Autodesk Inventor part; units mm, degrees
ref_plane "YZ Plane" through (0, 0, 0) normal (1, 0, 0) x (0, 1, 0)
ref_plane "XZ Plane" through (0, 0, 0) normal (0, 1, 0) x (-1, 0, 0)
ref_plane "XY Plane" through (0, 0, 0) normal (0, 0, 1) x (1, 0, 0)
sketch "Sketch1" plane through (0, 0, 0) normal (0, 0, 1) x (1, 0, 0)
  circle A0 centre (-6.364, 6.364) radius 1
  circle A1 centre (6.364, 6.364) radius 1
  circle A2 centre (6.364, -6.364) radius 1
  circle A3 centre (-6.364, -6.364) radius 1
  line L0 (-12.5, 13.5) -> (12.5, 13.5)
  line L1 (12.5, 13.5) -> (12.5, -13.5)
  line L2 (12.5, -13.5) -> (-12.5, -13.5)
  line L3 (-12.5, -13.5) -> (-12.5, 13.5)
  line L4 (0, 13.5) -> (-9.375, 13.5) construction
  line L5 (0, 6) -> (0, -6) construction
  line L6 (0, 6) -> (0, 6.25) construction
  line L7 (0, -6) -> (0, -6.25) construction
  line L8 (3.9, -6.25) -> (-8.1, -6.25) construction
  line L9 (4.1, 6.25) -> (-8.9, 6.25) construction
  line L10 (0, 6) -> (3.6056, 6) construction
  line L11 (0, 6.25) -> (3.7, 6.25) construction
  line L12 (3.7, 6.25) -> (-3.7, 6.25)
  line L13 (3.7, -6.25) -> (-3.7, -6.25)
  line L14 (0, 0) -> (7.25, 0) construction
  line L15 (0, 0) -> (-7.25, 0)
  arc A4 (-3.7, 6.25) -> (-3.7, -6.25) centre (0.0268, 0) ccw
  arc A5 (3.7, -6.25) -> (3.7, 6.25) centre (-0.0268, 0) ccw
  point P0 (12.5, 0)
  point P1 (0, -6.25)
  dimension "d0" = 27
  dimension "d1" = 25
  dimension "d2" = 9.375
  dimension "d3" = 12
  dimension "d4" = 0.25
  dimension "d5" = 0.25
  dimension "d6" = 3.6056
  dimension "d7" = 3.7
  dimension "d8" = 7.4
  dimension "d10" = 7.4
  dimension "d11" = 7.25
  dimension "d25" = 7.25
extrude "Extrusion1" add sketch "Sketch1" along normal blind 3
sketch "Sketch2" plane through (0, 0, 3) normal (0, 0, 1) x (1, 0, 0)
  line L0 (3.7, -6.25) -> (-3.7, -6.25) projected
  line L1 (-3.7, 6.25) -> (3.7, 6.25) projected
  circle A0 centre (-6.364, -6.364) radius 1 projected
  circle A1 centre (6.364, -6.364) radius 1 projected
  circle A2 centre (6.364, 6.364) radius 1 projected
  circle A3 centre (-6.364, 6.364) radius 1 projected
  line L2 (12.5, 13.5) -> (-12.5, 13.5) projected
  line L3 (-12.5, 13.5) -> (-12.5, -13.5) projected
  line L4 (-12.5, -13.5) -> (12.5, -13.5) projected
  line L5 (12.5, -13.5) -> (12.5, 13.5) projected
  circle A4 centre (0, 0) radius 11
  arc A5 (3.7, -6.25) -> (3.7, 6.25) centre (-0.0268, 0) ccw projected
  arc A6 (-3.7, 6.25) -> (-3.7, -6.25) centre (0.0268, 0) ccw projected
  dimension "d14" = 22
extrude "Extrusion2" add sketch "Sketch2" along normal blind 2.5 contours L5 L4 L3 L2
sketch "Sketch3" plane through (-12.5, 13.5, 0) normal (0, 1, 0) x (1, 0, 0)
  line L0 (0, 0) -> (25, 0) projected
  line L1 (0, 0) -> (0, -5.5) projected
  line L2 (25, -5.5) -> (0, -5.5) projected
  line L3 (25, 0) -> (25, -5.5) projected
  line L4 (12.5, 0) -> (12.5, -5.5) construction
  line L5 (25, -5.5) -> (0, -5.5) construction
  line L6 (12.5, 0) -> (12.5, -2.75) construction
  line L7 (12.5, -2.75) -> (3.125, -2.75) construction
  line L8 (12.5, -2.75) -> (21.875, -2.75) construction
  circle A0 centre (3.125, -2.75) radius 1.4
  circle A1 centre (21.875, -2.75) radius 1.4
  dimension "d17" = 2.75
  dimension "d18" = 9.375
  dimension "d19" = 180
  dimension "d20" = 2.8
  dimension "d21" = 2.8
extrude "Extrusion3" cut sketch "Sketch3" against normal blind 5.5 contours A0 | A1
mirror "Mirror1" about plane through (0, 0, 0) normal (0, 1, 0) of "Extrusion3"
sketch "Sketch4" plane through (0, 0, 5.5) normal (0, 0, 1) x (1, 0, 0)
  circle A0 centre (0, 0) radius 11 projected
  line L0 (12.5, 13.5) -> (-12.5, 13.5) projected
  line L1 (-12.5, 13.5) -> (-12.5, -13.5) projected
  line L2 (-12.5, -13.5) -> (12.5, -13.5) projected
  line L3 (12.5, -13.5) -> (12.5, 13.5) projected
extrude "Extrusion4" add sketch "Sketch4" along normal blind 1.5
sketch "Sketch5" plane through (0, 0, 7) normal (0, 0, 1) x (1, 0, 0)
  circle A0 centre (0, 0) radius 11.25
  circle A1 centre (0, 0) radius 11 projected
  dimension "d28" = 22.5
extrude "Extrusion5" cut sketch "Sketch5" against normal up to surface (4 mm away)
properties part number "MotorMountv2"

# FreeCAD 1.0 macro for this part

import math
import FreeCAD as App
import Part
import Sketcher

doc = App.newDocument("Part")
params = doc.addObject("Spreadsheet::Sheet", "Params")
for row, (alias, value) in enumerate([
    ("sketch1_width", "25 mm"),
    ("sketch1_height", "27 mm"),
    ("sketch1_diameter", "2 mm"),
    ("sketch1_width2", "7.4 mm"),
    ("pad1_length", "3 mm"),
    ("sketch2_diameter", "22 mm"),
    ("sketch2_width", "25 mm"),
    ("sketch2_height", "27 mm"),
    ("pad2_length", "2.5 mm"),
    ("sketch3_diameter", "2.8 mm"),
    ("pocket1_length", "5.5 mm"),
    ("sketch4_diameter", "22 mm"),
    ("sketch4_width", "25 mm"),
    ("sketch4_height", "27 mm"),
    ("pad3_length", "1.5 mm"),
    ("sketch5_diameter", "22.5 mm"),
    ("sketch5_diameter2", "22 mm"),
    ("pocket2_length", "4 mm"),
], start=1):
    params.set(f"A{row}", alias)
    params.set(f"B{row}", "=" + value)
    params.setAlias(f"B{row}", alias)

body = doc.addObject("PartDesign::Body", "Body")

# Sketch on XY plane
sketch1 = body.newObject("Sketcher::SketchObject", "Sketch")
sketch1.AttachmentSupport = (doc.getObject("XY_Plane"), [""])
sketch1.MapMode = "FlatFace"
sketch1.addGeometry(Part.LineSegment(App.Vector(12.5, 13.5, 0), App.Vector(-12.5, 13.5, 0)), False)
sketch1.addGeometry(Part.LineSegment(App.Vector(-12.5, 13.5, 0), App.Vector(-12.5, -13.5, 0)), False)
sketch1.addGeometry(Part.LineSegment(App.Vector(-12.5, -13.5, 0), App.Vector(12.5, -13.5, 0)), False)
sketch1.addGeometry(Part.LineSegment(App.Vector(12.5, -13.5, 0), App.Vector(12.5, 13.5, 0)), False)
sketch1.addGeometry(Part.Circle(App.Vector(-6.364, -6.364, 0), App.Vector(0, 0, 1), 1), False)
sketch1.addGeometry(Part.Circle(App.Vector(6.364, -6.364, 0), App.Vector(0, 0, 1), 1), False)
sketch1.addGeometry(Part.Circle(App.Vector(-6.364, 6.364, 0), App.Vector(0, 0, 1), 1), False)
sketch1.addGeometry(Part.LineSegment(App.Vector(-3.7, 6.25, 0), App.Vector(3.7, 6.25, 0)), False)
sketch1.addGeometry(Part.ArcOfCircle(Part.Circle(App.Vector(-0.0268, 0, 0), App.Vector(0, 0, 1), 7.276781), math.radians(-59.192883), math.radians(59.192883)), False)
sketch1.addGeometry(Part.LineSegment(App.Vector(3.7, -6.25, 0), App.Vector(-3.7, -6.25, 0)), False)
sketch1.addGeometry(Part.ArcOfCircle(Part.Circle(App.Vector(0.0268, 0, 0), App.Vector(0, 0, 1), 7.276781), math.radians(120.807117), math.radians(239.192883)), False)
sketch1.addGeometry(Part.Circle(App.Vector(6.364, 6.364, 0), App.Vector(0, 0, 1), 1), False)
sketch1.addConstraint(Sketcher.Constraint("Coincident", 0, 2, 1, 1))
sketch1.addConstraint(Sketcher.Constraint("Coincident", 1, 2, 2, 1))
sketch1.addConstraint(Sketcher.Constraint("Coincident", 2, 2, 3, 1))
sketch1.addConstraint(Sketcher.Constraint("Coincident", 3, 2, 0, 1))
sketch1.addConstraint(Sketcher.Constraint("Coincident", 7, 2, 8, 2))
sketch1.addConstraint(Sketcher.Constraint("Coincident", 8, 1, 9, 1))
sketch1.addConstraint(Sketcher.Constraint("Coincident", 9, 2, 10, 2))
sketch1.addConstraint(Sketcher.Constraint("Coincident", 10, 1, 7, 1))
sketch1.addConstraint(Sketcher.Constraint("Horizontal", 0))
sketch1.addConstraint(Sketcher.Constraint("Vertical", 1))
sketch1.addConstraint(Sketcher.Constraint("Horizontal", 2))
sketch1.addConstraint(Sketcher.Constraint("Vertical", 3))
sketch1.addConstraint(Sketcher.Constraint("Horizontal", 7))
sketch1.addConstraint(Sketcher.Constraint("Horizontal", 9))
sketch1.addConstraint(Sketcher.Constraint("Equal", 4, 5))
sketch1.addConstraint(Sketcher.Constraint("Equal", 5, 6))
sketch1.addConstraint(Sketcher.Constraint("Equal", 8, 10))
sketch1.addConstraint(Sketcher.Constraint("Equal", 6, 11))
sketch1.addConstraint(Sketcher.Constraint("Symmetric", 5, 3, 6, 3, -1, 1))
sketch1.addConstraint(Sketcher.Constraint("Symmetric", 8, 3, 10, 3, -1, 1))
sketch1.addConstraint(Sketcher.Constraint("Symmetric", 4, 3, 11, 3, -1, 1))
sketch1.addConstraint(Sketcher.Constraint("Symmetric", 0, 2, 2, 2, -1, 1))
sketch1.addConstraint(Sketcher.Constraint("Symmetric", 4, 3, 5, 3, -2))
sketch1.addConstraint(Sketcher.Constraint("Symmetric", 7, 2, 8, 1, -1))
sketch1.addConstraint(Sketcher.Constraint("DistanceX", 0, 2, 0, 1, 25.0))
sketch1.addConstraint(Sketcher.Constraint("DistanceY", 1, 2, 1, 1, 27.0))
sketch1.addConstraint(Sketcher.Constraint("Diameter", 4, 2.0))
sketch1.addConstraint(Sketcher.Constraint("DistanceX", 7, 1, 7, 2, 7.4))
sketch1.addConstraint(Sketcher.Constraint("DistanceY", 7, 2, 3, 2, 7.25))
sketch1.addConstraint(Sketcher.Constraint("Radius", 8, 7.2768))
sketch1.addConstraint(Sketcher.Constraint("DistanceX", 4, 3, -1, 1, 6.364))
sketch1.addConstraint(Sketcher.Constraint("DistanceY", 4, 3, -1, 1, 6.364))
sketch1.setExpression("Constraints[24]", "Params.sketch1_width")
sketch1.setExpression("Constraints[25]", "Params.sketch1_height")
sketch1.setExpression("Constraints[26]", "Params.sketch1_diameter")
sketch1.setExpression("Constraints[27]", "Params.sketch1_width2")
pad1 = body.newObject("PartDesign::Pad", "Pad")
pad1.Profile = sketch1
pad1.setExpression("Length", "Params.pad1_length")

# Sketch on XY plane
sketch2 = body.newObject("Sketcher::SketchObject", "Sketch001")
sketch2.AttachmentSupport = (doc.getObject("XY_Plane"), [""])
sketch2.MapMode = "FlatFace"
sketch2.AttachmentOffset = App.Placement(App.Vector(0, 0, 3), App.Rotation())
sketch2.addGeometry(Part.LineSegment(App.Vector(12.5, -13.5, 0), App.Vector(12.5, 13.5, 0)), False)
sketch2.addGeometry(Part.LineSegment(App.Vector(12.5, 13.5, 0), App.Vector(-12.5, 13.5, 0)), False)
sketch2.addGeometry(Part.LineSegment(App.Vector(-12.5, 13.5, 0), App.Vector(-12.5, -13.5, 0)), False)
sketch2.addGeometry(Part.LineSegment(App.Vector(-12.5, -13.5, 0), App.Vector(12.5, -13.5, 0)), False)
sketch2.addGeometry(Part.Circle(App.Vector(0, 0, 0), App.Vector(0, 0, 1), 11), False)
sketch2.addConstraint(Sketcher.Constraint("Coincident", 0, 2, 1, 1))
sketch2.addConstraint(Sketcher.Constraint("Coincident", 1, 2, 2, 1))
sketch2.addConstraint(Sketcher.Constraint("Coincident", 2, 2, 3, 1))
sketch2.addConstraint(Sketcher.Constraint("Coincident", 3, 2, 0, 1))
sketch2.addConstraint(Sketcher.Constraint("Vertical", 0))
sketch2.addConstraint(Sketcher.Constraint("Horizontal", 1))
sketch2.addConstraint(Sketcher.Constraint("Vertical", 2))
sketch2.addConstraint(Sketcher.Constraint("Horizontal", 3))
sketch2.addConstraint(Sketcher.Constraint("Coincident", 4, 3, -1, 1))
sketch2.addConstraint(Sketcher.Constraint("Symmetric", 0, 2, 2, 2, -1, 1))
sketch2.addConstraint(Sketcher.Constraint("Diameter", 4, 22.0))
sketch2.addConstraint(Sketcher.Constraint("DistanceX", 1, 2, 1, 1, 25.0))
sketch2.addConstraint(Sketcher.Constraint("DistanceY", 0, 1, 0, 2, 27.0))
sketch2.setExpression("Constraints[10]", "Params.sketch2_diameter")
sketch2.setExpression("Constraints[11]", "Params.sketch2_width")
sketch2.setExpression("Constraints[12]", "Params.sketch2_height")
pad2 = body.newObject("PartDesign::Pad", "Pad001")
pad2.Profile = sketch2
pad2.setExpression("Length", "Params.pad2_length")

# Sketch on XZ plane
sketch3 = body.newObject("Sketcher::SketchObject", "Sketch002")
sketch3.AttachmentSupport = (doc.getObject("XZ_Plane"), [""])
sketch3.MapMode = "FlatFace"
sketch3.AttachmentOffset = App.Placement(App.Vector(0, 0, -13.5), App.Rotation())
sketch3.addGeometry(Part.Circle(App.Vector(-9.375, 2.75, 0), App.Vector(0, 0, 1), 1.4), False)
sketch3.addGeometry(Part.Circle(App.Vector(9.375, 2.75, 0), App.Vector(0, 0, 1), 1.4), False)
sketch3.addConstraint(Sketcher.Constraint("Equal", 0, 1))
sketch3.addConstraint(Sketcher.Constraint("Symmetric", 0, 3, 1, 3, -2))
sketch3.addConstraint(Sketcher.Constraint("Diameter", 0, 2.8))
sketch3.addConstraint(Sketcher.Constraint("DistanceY", -1, 1, 0, 3, 2.75))
sketch3.addConstraint(Sketcher.Constraint("DistanceX", 0, 3, -1, 1, 9.375))
sketch3.setExpression("Constraints[2]", "Params.sketch3_diameter")
pocket1 = body.newObject("PartDesign::Pocket", "Pocket")
pocket1.Profile = sketch3
pocket1.setExpression("Length", "Params.pocket1_length")
pocket1.Reversed = True
doc.recompute()

mirrored = body.newObject("PartDesign::Mirrored", "Mirrored")
mirrored.Originals = [pocket1]
mirrored.MirrorPlane = (doc.getObject("XZ_Plane"), [""])
body.Tip = mirrored

# Sketch on XY plane
sketch4 = body.newObject("Sketcher::SketchObject", "Sketch003")
sketch4.AttachmentSupport = (doc.getObject("XY_Plane"), [""])
sketch4.MapMode = "FlatFace"
sketch4.AttachmentOffset = App.Placement(App.Vector(0, 0, 5.5), App.Rotation())
sketch4.addGeometry(Part.LineSegment(App.Vector(12.5, -13.5, 0), App.Vector(12.5, 13.5, 0)), False)
sketch4.addGeometry(Part.LineSegment(App.Vector(12.5, 13.5, 0), App.Vector(-12.5, 13.5, 0)), False)
sketch4.addGeometry(Part.LineSegment(App.Vector(-12.5, 13.5, 0), App.Vector(-12.5, -13.5, 0)), False)
sketch4.addGeometry(Part.LineSegment(App.Vector(-12.5, -13.5, 0), App.Vector(12.5, -13.5, 0)), False)
sketch4.addGeometry(Part.Circle(App.Vector(0, 0, 0), App.Vector(0, 0, 1), 11), False)
sketch4.addConstraint(Sketcher.Constraint("Coincident", 0, 2, 1, 1))
sketch4.addConstraint(Sketcher.Constraint("Coincident", 1, 2, 2, 1))
sketch4.addConstraint(Sketcher.Constraint("Coincident", 2, 2, 3, 1))
sketch4.addConstraint(Sketcher.Constraint("Coincident", 3, 2, 0, 1))
sketch4.addConstraint(Sketcher.Constraint("Vertical", 0))
sketch4.addConstraint(Sketcher.Constraint("Horizontal", 1))
sketch4.addConstraint(Sketcher.Constraint("Vertical", 2))
sketch4.addConstraint(Sketcher.Constraint("Horizontal", 3))
sketch4.addConstraint(Sketcher.Constraint("Coincident", 4, 3, -1, 1))
sketch4.addConstraint(Sketcher.Constraint("Symmetric", 0, 2, 2, 2, -1, 1))
sketch4.addConstraint(Sketcher.Constraint("Diameter", 4, 22.0))
sketch4.addConstraint(Sketcher.Constraint("DistanceX", 1, 2, 1, 1, 25.0))
sketch4.addConstraint(Sketcher.Constraint("DistanceY", 0, 1, 0, 2, 27.0))
sketch4.setExpression("Constraints[10]", "Params.sketch4_diameter")
sketch4.setExpression("Constraints[11]", "Params.sketch4_width")
sketch4.setExpression("Constraints[12]", "Params.sketch4_height")
pad3 = body.newObject("PartDesign::Pad", "Pad002")
pad3.Profile = sketch4
pad3.setExpression("Length", "Params.pad3_length")

# Sketch on XY plane
sketch5 = body.newObject("Sketcher::SketchObject", "Sketch004")
sketch5.AttachmentSupport = (doc.getObject("XY_Plane"), [""])
sketch5.MapMode = "FlatFace"
sketch5.AttachmentOffset = App.Placement(App.Vector(0, 0, 7), App.Rotation())
sketch5.addGeometry(Part.Circle(App.Vector(0, 0, 0), App.Vector(0, 0, 1), 11.25), False)
sketch5.addGeometry(Part.Circle(App.Vector(0, 0, 0), App.Vector(0, 0, 1), 11), False)
sketch5.addConstraint(Sketcher.Constraint("Coincident", 0, 3, -1, 1))
sketch5.addConstraint(Sketcher.Constraint("Coincident", 1, 3, -1, 1))
sketch5.addConstraint(Sketcher.Constraint("Diameter", 0, 22.5))
sketch5.addConstraint(Sketcher.Constraint("Diameter", 1, 22.0))
sketch5.setExpression("Constraints[2]", "Params.sketch5_diameter")
sketch5.setExpression("Constraints[3]", "Params.sketch5_diameter2")
pocket2 = body.newObject("PartDesign::Pocket", "Pocket001")
pocket2.Profile = sketch5
pocket2.setExpression("Length", "Params.pocket2_length")

doc.recompute()
